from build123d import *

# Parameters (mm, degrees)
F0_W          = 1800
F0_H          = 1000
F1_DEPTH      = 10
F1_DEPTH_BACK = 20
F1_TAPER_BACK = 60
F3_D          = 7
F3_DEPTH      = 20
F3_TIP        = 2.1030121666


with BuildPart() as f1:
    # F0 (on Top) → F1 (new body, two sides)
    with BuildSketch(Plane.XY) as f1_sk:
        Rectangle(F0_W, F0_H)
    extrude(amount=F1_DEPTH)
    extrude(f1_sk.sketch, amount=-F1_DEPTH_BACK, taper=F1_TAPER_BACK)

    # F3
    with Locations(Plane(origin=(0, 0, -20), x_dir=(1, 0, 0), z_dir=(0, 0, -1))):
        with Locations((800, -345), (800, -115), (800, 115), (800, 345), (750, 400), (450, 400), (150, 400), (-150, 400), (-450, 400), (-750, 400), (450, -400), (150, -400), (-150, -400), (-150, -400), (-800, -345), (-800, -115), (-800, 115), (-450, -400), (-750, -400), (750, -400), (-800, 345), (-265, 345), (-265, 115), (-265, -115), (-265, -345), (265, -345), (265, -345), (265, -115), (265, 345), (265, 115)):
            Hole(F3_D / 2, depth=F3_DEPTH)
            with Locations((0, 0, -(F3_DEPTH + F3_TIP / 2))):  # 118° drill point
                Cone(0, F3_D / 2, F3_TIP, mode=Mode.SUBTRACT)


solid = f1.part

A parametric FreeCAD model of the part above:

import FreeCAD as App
import Part
import Sketcher
Q = App.Units.Quantity

doc = App.newDocument("Part")
body = doc.addObject("PartDesign::Body", "Body")

# Sketch on XY plane
sketch1 = doc.addObject("Sketcher::SketchObject", "Sketch")
body.addObject(sketch1)
sketch1.AttachmentSupport = (doc.XY_Plane, [""])
sketch1.MapMode = "FlatFace"
sketch1.addGeometry([
    Part.LineSegment(App.Vector(-900, 500, 0), App.Vector(-900, -500, 0)),
    Part.LineSegment(App.Vector(-900, -500, 0), App.Vector(900, -500, 0)),
    Part.LineSegment(App.Vector(900, -500, 0), App.Vector(900, 500, 0)),
    Part.LineSegment(App.Vector(900, 500, 0), App.Vector(-900, 500, 0)),
], False)
sketch1.addConstraint([
    Sketcher.Constraint("Coincident", 0, 2, 1, 1),
    Sketcher.Constraint("Coincident", 1, 2, 2, 1),
    Sketcher.Constraint("Coincident", 2, 2, 3, 1),
    Sketcher.Constraint("Coincident", 3, 2, 0, 1),
    Sketcher.Constraint("Vertical", 0),
    Sketcher.Constraint("Horizontal", 1),
    Sketcher.Constraint("Vertical", 2),
    Sketcher.Constraint("Horizontal", 3),
    Sketcher.Constraint("Symmetric", 0, 2, 2, 2, -1, 1),
    Sketcher.Constraint("DistanceX", 1, 1, 1, 2, Q("1800 mm")),
    Sketcher.Constraint("DistanceY", 0, 2, 0, 1, Q("1000 mm")),
])
pad1 = doc.addObject("PartDesign::Pad", "Pad")
body.addObject(pad1)
pad1.Profile = sketch1
pad1.Length = 10
pad2 = doc.addObject("PartDesign::Pad", "Pad001")
body.addObject(pad2)
pad2.Profile = sketch1
pad2.Length = 20
pad2.Reversed = True
pad2.TaperAngle = -60

# Sketch on XY plane
sketch2 = doc.addObject("Sketcher::SketchObject", "Sketch001")
body.addObject(sketch2)
sketch2.AttachmentSupport = (doc.XY_Plane, [""])
sketch2.MapMode = "FlatFace"
sketch2.AttachmentOffset = App.Placement(App.Vector(0, 0, -20), App.Rotation())
sketch2.addGeometry([
    Part.Circle(App.Vector(800, 345, 0), App.Vector(0, 0, 1), 3.5),  # 0
    Part.Circle(App.Vector(800, 115, 0), App.Vector(0, 0, 1), 3.5),  # 1
    Part.Circle(App.Vector(800, -115, 0), App.Vector(0, 0, 1), 3.5),  # 2
    Part.Circle(App.Vector(800, -345, 0), App.Vector(0, 0, 1), 3.5),  # 3
    Part.Circle(App.Vector(750, -400, 0), App.Vector(0, 0, 1), 3.5),  # 4
    Part.Circle(App.Vector(450, -400, 0), App.Vector(0, 0, 1), 3.5),  # 5
    Part.Circle(App.Vector(150, -400, 0), App.Vector(0, 0, 1), 3.5),  # 6
    Part.Circle(App.Vector(-150, -400, 0), App.Vector(0, 0, 1), 3.5),  # 7
    Part.Circle(App.Vector(-450, -400, 0), App.Vector(0, 0, 1), 3.5),  # 8
    Part.Circle(App.Vector(-750, -400, 0), App.Vector(0, 0, 1), 3.5),  # 9
    Part.Circle(App.Vector(450, 400, 0), App.Vector(0, 0, 1), 3.5),  # 10
    Part.Circle(App.Vector(150, 400, 0), App.Vector(0, 0, 1), 3.5),  # 11
    Part.Circle(App.Vector(-150, 400, 0), App.Vector(0, 0, 1), 3.5),  # 12
    Part.Circle(App.Vector(-150, 400, 0), App.Vector(0, 0, 1), 3.5),  # 13
    Part.Circle(App.Vector(-800, 345, 0), App.Vector(0, 0, 1), 3.5),  # 14
    Part.Circle(App.Vector(-800, 115, 0), App.Vector(0, 0, 1), 3.5),  # 15
    Part.Circle(App.Vector(-800, -115, 0), App.Vector(0, 0, 1), 3.5),  # 16
    Part.Circle(App.Vector(-450, 400, 0), App.Vector(0, 0, 1), 3.5),  # 17
    Part.Circle(App.Vector(-750, 400, 0), App.Vector(0, 0, 1), 3.5),  # 18
    Part.Circle(App.Vector(750, 400, 0), App.Vector(0, 0, 1), 3.5),  # 19
    Part.Circle(App.Vector(-800, -345, 0), App.Vector(0, 0, 1), 3.5),  # 20
    Part.Circle(App.Vector(-265, -345, 0), App.Vector(0, 0, 1), 3.5),  # 21
    Part.Circle(App.Vector(-265, -115, 0), App.Vector(0, 0, 1), 3.5),  # 22
    Part.Circle(App.Vector(-265, 115, 0), App.Vector(0, 0, 1), 3.5),  # 23
    Part.Circle(App.Vector(-265, 345, 0), App.Vector(0, 0, 1), 3.5),  # 24
    Part.Circle(App.Vector(265, 345, 0), App.Vector(0, 0, 1), 3.5),  # 25
    Part.Circle(App.Vector(265, 345, 0), App.Vector(0, 0, 1), 3.5),  # 26
    Part.Circle(App.Vector(265, 115, 0), App.Vector(0, 0, 1), 3.5),  # 27
    Part.Circle(App.Vector(265, -345, 0), App.Vector(0, 0, 1), 3.5),  # 28
    Part.Circle(App.Vector(265, -115, 0), App.Vector(0, 0, 1), 3.5),  # 29
], False)
sketch2.addConstraint([
    Sketcher.Constraint("Coincident", 13, 3, 12, 3),
    Sketcher.Constraint("Coincident", 26, 3, 25, 3),
    Sketcher.Constraint("Equal", 0, 1),
    Sketcher.Constraint("Equal", 1, 2),
    Sketcher.Constraint("Equal", 2, 3),
    Sketcher.Constraint("Equal", 3, 4),
    Sketcher.Constraint("Equal", 4, 5),
    Sketcher.Constraint("Equal", 5, 6),
    Sketcher.Constraint("Equal", 6, 7),
    Sketcher.Constraint("Equal", 7, 8),
    Sketcher.Constraint("Equal", 8, 9),
    Sketcher.Constraint("Equal", 9, 10),
    Sketcher.Constraint("Equal", 10, 11),
    Sketcher.Constraint("Equal", 11, 12),
    Sketcher.Constraint("Equal", 12, 13),
    Sketcher.Constraint("Equal", 13, 14),
    Sketcher.Constraint("Equal", 14, 15),
    Sketcher.Constraint("Equal", 15, 16),
    Sketcher.Constraint("Equal", 16, 17),
    Sketcher.Constraint("Equal", 17, 18),
    Sketcher.Constraint("Equal", 18, 19),
    Sketcher.Constraint("Equal", 19, 20),
    Sketcher.Constraint("Equal", 20, 21),
    Sketcher.Constraint("Equal", 21, 22),
    Sketcher.Constraint("Equal", 22, 23),
    Sketcher.Constraint("Equal", 23, 24),
    Sketcher.Constraint("Equal", 24, 25),
    Sketcher.Constraint("Equal", 25, 26),
    Sketcher.Constraint("Equal", 26, 27),
    Sketcher.Constraint("Equal", 27, 28),
    Sketcher.Constraint("Equal", 28, 29),
    Sketcher.Constraint("Symmetric", 8, 3, 10, 3, -1, 1),
    Sketcher.Constraint("Symmetric", 7, 3, 11, 3, -1, 1),
    Sketcher.Constraint("Symmetric", 6, 3, 12, 3, -1, 1),
    Sketcher.Constraint("Symmetric", 3, 3, 14, 3, -1, 1),
    Sketcher.Constraint("Symmetric", 2, 3, 15, 3, -1, 1),
    Sketcher.Constraint("Symmetric", 1, 3, 16, 3, -1, 1),
    Sketcher.Constraint("Symmetric", 5, 3, 17, 3, -1, 1),
    Sketcher.Constraint("Symmetric", 4, 3, 18, 3, -1, 1),
    Sketcher.Constraint("Symmetric", 9, 3, 19, 3, -1, 1),
    Sketcher.Constraint("Symmetric", 0, 3, 20, 3, -1, 1),
    Sketcher.Constraint("Symmetric", 21, 3, 25, 3, -1, 1),
    Sketcher.Constraint("Symmetric", 22, 3, 27, 3, -1, 1),
    Sketcher.Constraint("Symmetric", 24, 3, 28, 3, -1, 1),
    Sketcher.Constraint("Symmetric", 23, 3, 29, 3, -1, 1),
    Sketcher.Constraint("Symmetric", 6, 3, 7, 3, -2),
    Sketcher.Constraint("Symmetric", 5, 3, 8, 3, -2),
    Sketcher.Constraint("Symmetric", 4, 3, 9, 3, -2),
    Sketcher.Constraint("Symmetric", 0, 3, 14, 3, -2),
    Sketcher.Constraint("Symmetric", 1, 3, 15, 3, -2),
    Sketcher.Constraint("Symmetric", 24, 3, 25, 3, -2),
    Sketcher.Constraint("Symmetric", 23, 3, 27, 3, -2),
    Sketcher.Constraint("Horizontal", 4, 3, 5, 3),
    Sketcher.Constraint("Horizontal", 5, 3, 6, 3),
    Sketcher.Constraint("Horizontal", 20, 3, 21, 3),
    Sketcher.Constraint("Horizontal", 16, 3, 22, 3),
    Sketcher.Constraint("Vertical", 0, 3, 1, 3),
    Sketcher.Constraint("Vertical", 21, 3, 22, 3),
    Sketcher.Constraint("Diameter", 0, Q("7 mm")),
    Sketcher.Constraint("DistanceX", -1, 1, 0, 3, Q("800 mm")),
    Sketcher.Constraint("DistanceY", -1, 1, 0, 3, Q("345 mm")),
    Sketcher.Constraint("DistanceY", -1, 1, 1, 3, Q("115 mm")),
    Sketcher.Constraint("DistanceX", -1, 1, 4, 3, Q("750 mm")),
    Sketcher.Constraint("DistanceY", 4, 3, -1, 1, Q("400 mm")),
    Sketcher.Constraint("DistanceX", -1, 1, 5, 3, Q("450 mm")),
    Sketcher.Constraint("DistanceX", -1, 1, 6, 3, Q("150 mm")),
    Sketcher.Constraint("DistanceX", 21, 3, -1, 1, Q("265 mm")),
])
doc.recompute()
hole = doc.addObject("PartDesign::Hole", "Hole")
body.addObject(hole)
hole.Profile = sketch2
hole.ThreadType = "None"
hole.Diameter = 7
hole.DepthType = "Dimension"
hole.Depth = 20
hole.DrillPoint = "Angled"
hole.DrillPointAngle = 118
hole.Reversed = True

doc.recompute()
